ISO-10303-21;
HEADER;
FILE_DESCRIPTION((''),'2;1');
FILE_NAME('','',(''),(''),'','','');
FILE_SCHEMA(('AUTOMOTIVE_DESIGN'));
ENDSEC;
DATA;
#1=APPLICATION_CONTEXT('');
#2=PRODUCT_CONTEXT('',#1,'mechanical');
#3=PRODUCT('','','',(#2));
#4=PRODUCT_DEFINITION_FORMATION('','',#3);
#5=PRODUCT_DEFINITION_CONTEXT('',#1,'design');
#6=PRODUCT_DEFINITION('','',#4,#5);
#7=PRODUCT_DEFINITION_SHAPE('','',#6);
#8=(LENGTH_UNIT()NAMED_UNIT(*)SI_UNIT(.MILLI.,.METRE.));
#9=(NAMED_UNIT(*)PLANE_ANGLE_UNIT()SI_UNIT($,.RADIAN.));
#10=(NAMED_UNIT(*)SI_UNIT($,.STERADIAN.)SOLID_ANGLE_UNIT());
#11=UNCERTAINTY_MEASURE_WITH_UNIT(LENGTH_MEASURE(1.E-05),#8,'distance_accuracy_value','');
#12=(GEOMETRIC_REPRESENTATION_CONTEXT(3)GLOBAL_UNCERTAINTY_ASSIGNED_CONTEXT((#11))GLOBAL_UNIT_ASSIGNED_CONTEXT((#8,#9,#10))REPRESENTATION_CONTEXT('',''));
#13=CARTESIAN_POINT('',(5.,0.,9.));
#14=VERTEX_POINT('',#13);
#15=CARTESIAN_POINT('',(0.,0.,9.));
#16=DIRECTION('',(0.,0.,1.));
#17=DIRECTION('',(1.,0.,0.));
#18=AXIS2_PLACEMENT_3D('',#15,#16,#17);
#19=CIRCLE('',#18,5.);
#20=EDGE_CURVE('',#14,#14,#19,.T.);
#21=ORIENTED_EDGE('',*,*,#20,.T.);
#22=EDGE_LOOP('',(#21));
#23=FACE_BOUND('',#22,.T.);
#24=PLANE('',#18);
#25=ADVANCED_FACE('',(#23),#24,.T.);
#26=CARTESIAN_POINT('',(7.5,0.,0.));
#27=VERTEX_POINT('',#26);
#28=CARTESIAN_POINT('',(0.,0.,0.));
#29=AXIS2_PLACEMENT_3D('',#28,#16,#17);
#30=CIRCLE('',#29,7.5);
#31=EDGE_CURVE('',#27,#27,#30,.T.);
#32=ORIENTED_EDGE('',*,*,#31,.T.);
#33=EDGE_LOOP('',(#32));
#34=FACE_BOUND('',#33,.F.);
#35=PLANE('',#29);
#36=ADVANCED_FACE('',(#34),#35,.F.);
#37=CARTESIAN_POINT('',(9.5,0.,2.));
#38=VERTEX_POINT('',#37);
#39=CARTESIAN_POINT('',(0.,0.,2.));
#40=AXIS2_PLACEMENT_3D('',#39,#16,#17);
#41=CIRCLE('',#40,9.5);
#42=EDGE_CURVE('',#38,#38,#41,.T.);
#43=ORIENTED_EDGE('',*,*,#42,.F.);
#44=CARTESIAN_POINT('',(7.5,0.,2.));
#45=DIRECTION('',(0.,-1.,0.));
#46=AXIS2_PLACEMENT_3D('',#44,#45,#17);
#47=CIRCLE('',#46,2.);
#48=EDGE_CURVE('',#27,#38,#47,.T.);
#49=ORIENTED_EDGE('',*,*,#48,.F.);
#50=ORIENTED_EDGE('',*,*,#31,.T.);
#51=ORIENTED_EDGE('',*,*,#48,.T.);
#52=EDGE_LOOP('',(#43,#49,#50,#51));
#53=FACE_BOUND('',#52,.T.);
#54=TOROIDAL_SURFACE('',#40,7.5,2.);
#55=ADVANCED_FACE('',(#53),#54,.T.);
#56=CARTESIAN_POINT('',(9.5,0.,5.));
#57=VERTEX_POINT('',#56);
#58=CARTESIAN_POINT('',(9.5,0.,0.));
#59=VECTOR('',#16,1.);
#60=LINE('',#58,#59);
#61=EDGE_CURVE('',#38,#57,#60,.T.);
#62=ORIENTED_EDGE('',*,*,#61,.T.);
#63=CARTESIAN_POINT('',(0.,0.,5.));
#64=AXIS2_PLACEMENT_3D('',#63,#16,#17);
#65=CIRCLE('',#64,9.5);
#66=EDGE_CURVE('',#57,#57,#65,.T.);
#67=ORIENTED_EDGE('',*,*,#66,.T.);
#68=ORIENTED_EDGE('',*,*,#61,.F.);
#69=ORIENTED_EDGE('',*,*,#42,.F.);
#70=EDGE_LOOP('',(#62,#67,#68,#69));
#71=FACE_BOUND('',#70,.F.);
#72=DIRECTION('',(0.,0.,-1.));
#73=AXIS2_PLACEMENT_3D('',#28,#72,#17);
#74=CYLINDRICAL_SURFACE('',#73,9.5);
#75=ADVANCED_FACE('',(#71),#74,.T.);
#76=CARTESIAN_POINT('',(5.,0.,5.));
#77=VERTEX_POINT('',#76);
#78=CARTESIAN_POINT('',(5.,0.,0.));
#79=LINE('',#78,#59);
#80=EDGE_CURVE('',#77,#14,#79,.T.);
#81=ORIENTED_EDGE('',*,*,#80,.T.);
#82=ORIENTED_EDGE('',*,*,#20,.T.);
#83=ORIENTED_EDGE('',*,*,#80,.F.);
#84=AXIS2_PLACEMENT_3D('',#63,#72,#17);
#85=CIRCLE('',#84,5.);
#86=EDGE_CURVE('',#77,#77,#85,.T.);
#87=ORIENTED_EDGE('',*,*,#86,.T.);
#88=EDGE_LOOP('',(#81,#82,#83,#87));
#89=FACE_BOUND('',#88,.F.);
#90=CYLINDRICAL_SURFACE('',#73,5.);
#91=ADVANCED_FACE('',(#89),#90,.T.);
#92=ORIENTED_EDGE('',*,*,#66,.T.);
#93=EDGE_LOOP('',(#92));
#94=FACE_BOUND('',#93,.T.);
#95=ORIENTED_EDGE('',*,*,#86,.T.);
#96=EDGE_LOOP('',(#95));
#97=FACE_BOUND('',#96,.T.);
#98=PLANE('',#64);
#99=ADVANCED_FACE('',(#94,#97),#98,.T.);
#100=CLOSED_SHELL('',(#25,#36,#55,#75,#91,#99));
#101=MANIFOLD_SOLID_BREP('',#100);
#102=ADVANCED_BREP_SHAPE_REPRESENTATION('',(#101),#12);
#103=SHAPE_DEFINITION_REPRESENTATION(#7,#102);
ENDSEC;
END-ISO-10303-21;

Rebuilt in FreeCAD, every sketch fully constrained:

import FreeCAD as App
import Part
import Sketcher
from FreeCAD import Vector
Q = App.Units.Quantity


def edges_at(feature, points):
    """Names of the edges that pass closest to the given points."""
    edges = feature.Shape.Edges
    near = lambda p: min(range(len(edges)), key=lambda i: edges[i].distToShape(Part.Vertex(*p))[0])
    return sorted({f"Edge{near(p) + 1}" for p in points})

doc = App.newDocument("Part")
body = doc.addObject("PartDesign::Body", "Body")

# Sketch on XY plane
sketch1 = doc.addObject("Sketcher::SketchObject", "Sketch")
body.addObject(sketch1)
sketch1.AttachmentSupport = (doc.XY_Plane, [""])
sketch1.MapMode = "FlatFace"
sketch1.addGeometry(Part.Circle(Vector(0, 0, 0), Vector(0, 0, 1), 10), False)
sketch1.addConstraint([
    Sketcher.Constraint("Coincident", 0, 3, -1, 1),
    Sketcher.Constraint("Diameter", 0, Q("19 mm")),
])
pad1 = doc.addObject("PartDesign::Pad", "Pad")
body.addObject(pad1)
pad1.Profile = sketch1
pad1.Length = 5

# Sketch on XY plane
sketch2 = doc.addObject("Sketcher::SketchObject", "Sketch001")
body.addObject(sketch2)
sketch2.AttachmentSupport = (doc.XY_Plane, [""])
sketch2.MapMode = "FlatFace"
sketch2.addGeometry(Part.Circle(Vector(0, 0, 0), Vector(0, 0, 1), 5), False)
sketch2.addConstraint([
    Sketcher.Constraint("Coincident", 0, 3, -1, 1),
    Sketcher.Constraint("Diameter", 0, Q("10 mm")),
])
pad2 = doc.addObject("PartDesign::Pad", "Pad001")
body.addObject(pad2)
pad2.Profile = sketch2
pad2.Length = 9
doc.recompute()

fillet = doc.addObject("PartDesign::Fillet", "Fillet")
body.addObject(fillet)
fillet.Base = (pad2, edges_at(pad2, [(-9.5, 0, 0)]))
fillet.Radius = 2

doc.recompute()
